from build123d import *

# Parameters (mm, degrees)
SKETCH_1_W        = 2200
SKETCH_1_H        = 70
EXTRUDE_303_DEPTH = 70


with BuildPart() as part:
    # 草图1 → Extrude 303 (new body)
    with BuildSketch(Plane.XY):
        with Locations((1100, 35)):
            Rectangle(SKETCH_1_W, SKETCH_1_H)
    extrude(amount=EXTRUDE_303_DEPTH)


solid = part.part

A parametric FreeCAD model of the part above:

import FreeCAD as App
import Part
import Sketcher
from FreeCAD import Vector

doc = App.newDocument("Part")
params = doc.addObject("Spreadsheet::Sheet", "Params")
for row, (alias, value) in enumerate([
    ("sketch1_width", "2200 mm"),
    ("sketch1_height", "70 mm"),
    ("pad1_length", "70 mm"),
], start=1):
    params.set(f"A{row}", alias)
    params.set(f"B{row}", "=" + value)
    params.setAlias(f"B{row}", alias)

body = doc.addObject("PartDesign::Body", "Body")

# Sketch on XY plane
sketch1 = body.newObject("Sketcher::SketchObject", "Sketch")
sketch1.AttachmentSupport = (doc.getObject("XY_Plane"), [""])
sketch1.MapMode = "FlatFace"
sketch1.addGeometry(Part.LineSegment(Vector(0, 70, 0), Vector(0, 0, 0)), False)
sketch1.addGeometry(Part.LineSegment(Vector(0, 0, 0), Vector(2200, 0, 0)), False)
sketch1.addGeometry(Part.LineSegment(Vector(2200, 0, 0), Vector(2200, 70, 0)), False)
sketch1.addGeometry(Part.LineSegment(Vector(2200, 70, 0), Vector(0, 70, 0)), False)
sketch1.addConstraint(Sketcher.Constraint("Coincident", 0, 2, 1, 1))
sketch1.addConstraint(Sketcher.Constraint("Coincident", 1, 2, 2, 1))
sketch1.addConstraint(Sketcher.Constraint("Coincident", 2, 2, 3, 1))
sketch1.addConstraint(Sketcher.Constraint("Coincident", 3, 2, 0, 1))
sketch1.addConstraint(Sketcher.Constraint("Vertical", 0))
sketch1.addConstraint(Sketcher.Constraint("Horizontal", 1))
sketch1.addConstraint(Sketcher.Constraint("Vertical", 2))
sketch1.addConstraint(Sketcher.Constraint("Horizontal", 3))
sketch1.addConstraint(Sketcher.Constraint("Coincident", 0, 2, -1, 1))
sketch1.addConstraint(Sketcher.Constraint("DistanceX", 1, 1, 1, 2, 2200.0))
sketch1.addConstraint(Sketcher.Constraint("DistanceY", 0, 2, 0, 1, 70.0))
sketch1.setExpression("Constraints[9]", "Params.sketch1_width")
sketch1.setExpression("Constraints[10]", "Params.sketch1_height")
pad1 = body.newObject("PartDesign::Pad", "Pad")
pad1.Profile = sketch1
pad1.setExpression("Length", "Params.pad1_length")

doc.recompute()
